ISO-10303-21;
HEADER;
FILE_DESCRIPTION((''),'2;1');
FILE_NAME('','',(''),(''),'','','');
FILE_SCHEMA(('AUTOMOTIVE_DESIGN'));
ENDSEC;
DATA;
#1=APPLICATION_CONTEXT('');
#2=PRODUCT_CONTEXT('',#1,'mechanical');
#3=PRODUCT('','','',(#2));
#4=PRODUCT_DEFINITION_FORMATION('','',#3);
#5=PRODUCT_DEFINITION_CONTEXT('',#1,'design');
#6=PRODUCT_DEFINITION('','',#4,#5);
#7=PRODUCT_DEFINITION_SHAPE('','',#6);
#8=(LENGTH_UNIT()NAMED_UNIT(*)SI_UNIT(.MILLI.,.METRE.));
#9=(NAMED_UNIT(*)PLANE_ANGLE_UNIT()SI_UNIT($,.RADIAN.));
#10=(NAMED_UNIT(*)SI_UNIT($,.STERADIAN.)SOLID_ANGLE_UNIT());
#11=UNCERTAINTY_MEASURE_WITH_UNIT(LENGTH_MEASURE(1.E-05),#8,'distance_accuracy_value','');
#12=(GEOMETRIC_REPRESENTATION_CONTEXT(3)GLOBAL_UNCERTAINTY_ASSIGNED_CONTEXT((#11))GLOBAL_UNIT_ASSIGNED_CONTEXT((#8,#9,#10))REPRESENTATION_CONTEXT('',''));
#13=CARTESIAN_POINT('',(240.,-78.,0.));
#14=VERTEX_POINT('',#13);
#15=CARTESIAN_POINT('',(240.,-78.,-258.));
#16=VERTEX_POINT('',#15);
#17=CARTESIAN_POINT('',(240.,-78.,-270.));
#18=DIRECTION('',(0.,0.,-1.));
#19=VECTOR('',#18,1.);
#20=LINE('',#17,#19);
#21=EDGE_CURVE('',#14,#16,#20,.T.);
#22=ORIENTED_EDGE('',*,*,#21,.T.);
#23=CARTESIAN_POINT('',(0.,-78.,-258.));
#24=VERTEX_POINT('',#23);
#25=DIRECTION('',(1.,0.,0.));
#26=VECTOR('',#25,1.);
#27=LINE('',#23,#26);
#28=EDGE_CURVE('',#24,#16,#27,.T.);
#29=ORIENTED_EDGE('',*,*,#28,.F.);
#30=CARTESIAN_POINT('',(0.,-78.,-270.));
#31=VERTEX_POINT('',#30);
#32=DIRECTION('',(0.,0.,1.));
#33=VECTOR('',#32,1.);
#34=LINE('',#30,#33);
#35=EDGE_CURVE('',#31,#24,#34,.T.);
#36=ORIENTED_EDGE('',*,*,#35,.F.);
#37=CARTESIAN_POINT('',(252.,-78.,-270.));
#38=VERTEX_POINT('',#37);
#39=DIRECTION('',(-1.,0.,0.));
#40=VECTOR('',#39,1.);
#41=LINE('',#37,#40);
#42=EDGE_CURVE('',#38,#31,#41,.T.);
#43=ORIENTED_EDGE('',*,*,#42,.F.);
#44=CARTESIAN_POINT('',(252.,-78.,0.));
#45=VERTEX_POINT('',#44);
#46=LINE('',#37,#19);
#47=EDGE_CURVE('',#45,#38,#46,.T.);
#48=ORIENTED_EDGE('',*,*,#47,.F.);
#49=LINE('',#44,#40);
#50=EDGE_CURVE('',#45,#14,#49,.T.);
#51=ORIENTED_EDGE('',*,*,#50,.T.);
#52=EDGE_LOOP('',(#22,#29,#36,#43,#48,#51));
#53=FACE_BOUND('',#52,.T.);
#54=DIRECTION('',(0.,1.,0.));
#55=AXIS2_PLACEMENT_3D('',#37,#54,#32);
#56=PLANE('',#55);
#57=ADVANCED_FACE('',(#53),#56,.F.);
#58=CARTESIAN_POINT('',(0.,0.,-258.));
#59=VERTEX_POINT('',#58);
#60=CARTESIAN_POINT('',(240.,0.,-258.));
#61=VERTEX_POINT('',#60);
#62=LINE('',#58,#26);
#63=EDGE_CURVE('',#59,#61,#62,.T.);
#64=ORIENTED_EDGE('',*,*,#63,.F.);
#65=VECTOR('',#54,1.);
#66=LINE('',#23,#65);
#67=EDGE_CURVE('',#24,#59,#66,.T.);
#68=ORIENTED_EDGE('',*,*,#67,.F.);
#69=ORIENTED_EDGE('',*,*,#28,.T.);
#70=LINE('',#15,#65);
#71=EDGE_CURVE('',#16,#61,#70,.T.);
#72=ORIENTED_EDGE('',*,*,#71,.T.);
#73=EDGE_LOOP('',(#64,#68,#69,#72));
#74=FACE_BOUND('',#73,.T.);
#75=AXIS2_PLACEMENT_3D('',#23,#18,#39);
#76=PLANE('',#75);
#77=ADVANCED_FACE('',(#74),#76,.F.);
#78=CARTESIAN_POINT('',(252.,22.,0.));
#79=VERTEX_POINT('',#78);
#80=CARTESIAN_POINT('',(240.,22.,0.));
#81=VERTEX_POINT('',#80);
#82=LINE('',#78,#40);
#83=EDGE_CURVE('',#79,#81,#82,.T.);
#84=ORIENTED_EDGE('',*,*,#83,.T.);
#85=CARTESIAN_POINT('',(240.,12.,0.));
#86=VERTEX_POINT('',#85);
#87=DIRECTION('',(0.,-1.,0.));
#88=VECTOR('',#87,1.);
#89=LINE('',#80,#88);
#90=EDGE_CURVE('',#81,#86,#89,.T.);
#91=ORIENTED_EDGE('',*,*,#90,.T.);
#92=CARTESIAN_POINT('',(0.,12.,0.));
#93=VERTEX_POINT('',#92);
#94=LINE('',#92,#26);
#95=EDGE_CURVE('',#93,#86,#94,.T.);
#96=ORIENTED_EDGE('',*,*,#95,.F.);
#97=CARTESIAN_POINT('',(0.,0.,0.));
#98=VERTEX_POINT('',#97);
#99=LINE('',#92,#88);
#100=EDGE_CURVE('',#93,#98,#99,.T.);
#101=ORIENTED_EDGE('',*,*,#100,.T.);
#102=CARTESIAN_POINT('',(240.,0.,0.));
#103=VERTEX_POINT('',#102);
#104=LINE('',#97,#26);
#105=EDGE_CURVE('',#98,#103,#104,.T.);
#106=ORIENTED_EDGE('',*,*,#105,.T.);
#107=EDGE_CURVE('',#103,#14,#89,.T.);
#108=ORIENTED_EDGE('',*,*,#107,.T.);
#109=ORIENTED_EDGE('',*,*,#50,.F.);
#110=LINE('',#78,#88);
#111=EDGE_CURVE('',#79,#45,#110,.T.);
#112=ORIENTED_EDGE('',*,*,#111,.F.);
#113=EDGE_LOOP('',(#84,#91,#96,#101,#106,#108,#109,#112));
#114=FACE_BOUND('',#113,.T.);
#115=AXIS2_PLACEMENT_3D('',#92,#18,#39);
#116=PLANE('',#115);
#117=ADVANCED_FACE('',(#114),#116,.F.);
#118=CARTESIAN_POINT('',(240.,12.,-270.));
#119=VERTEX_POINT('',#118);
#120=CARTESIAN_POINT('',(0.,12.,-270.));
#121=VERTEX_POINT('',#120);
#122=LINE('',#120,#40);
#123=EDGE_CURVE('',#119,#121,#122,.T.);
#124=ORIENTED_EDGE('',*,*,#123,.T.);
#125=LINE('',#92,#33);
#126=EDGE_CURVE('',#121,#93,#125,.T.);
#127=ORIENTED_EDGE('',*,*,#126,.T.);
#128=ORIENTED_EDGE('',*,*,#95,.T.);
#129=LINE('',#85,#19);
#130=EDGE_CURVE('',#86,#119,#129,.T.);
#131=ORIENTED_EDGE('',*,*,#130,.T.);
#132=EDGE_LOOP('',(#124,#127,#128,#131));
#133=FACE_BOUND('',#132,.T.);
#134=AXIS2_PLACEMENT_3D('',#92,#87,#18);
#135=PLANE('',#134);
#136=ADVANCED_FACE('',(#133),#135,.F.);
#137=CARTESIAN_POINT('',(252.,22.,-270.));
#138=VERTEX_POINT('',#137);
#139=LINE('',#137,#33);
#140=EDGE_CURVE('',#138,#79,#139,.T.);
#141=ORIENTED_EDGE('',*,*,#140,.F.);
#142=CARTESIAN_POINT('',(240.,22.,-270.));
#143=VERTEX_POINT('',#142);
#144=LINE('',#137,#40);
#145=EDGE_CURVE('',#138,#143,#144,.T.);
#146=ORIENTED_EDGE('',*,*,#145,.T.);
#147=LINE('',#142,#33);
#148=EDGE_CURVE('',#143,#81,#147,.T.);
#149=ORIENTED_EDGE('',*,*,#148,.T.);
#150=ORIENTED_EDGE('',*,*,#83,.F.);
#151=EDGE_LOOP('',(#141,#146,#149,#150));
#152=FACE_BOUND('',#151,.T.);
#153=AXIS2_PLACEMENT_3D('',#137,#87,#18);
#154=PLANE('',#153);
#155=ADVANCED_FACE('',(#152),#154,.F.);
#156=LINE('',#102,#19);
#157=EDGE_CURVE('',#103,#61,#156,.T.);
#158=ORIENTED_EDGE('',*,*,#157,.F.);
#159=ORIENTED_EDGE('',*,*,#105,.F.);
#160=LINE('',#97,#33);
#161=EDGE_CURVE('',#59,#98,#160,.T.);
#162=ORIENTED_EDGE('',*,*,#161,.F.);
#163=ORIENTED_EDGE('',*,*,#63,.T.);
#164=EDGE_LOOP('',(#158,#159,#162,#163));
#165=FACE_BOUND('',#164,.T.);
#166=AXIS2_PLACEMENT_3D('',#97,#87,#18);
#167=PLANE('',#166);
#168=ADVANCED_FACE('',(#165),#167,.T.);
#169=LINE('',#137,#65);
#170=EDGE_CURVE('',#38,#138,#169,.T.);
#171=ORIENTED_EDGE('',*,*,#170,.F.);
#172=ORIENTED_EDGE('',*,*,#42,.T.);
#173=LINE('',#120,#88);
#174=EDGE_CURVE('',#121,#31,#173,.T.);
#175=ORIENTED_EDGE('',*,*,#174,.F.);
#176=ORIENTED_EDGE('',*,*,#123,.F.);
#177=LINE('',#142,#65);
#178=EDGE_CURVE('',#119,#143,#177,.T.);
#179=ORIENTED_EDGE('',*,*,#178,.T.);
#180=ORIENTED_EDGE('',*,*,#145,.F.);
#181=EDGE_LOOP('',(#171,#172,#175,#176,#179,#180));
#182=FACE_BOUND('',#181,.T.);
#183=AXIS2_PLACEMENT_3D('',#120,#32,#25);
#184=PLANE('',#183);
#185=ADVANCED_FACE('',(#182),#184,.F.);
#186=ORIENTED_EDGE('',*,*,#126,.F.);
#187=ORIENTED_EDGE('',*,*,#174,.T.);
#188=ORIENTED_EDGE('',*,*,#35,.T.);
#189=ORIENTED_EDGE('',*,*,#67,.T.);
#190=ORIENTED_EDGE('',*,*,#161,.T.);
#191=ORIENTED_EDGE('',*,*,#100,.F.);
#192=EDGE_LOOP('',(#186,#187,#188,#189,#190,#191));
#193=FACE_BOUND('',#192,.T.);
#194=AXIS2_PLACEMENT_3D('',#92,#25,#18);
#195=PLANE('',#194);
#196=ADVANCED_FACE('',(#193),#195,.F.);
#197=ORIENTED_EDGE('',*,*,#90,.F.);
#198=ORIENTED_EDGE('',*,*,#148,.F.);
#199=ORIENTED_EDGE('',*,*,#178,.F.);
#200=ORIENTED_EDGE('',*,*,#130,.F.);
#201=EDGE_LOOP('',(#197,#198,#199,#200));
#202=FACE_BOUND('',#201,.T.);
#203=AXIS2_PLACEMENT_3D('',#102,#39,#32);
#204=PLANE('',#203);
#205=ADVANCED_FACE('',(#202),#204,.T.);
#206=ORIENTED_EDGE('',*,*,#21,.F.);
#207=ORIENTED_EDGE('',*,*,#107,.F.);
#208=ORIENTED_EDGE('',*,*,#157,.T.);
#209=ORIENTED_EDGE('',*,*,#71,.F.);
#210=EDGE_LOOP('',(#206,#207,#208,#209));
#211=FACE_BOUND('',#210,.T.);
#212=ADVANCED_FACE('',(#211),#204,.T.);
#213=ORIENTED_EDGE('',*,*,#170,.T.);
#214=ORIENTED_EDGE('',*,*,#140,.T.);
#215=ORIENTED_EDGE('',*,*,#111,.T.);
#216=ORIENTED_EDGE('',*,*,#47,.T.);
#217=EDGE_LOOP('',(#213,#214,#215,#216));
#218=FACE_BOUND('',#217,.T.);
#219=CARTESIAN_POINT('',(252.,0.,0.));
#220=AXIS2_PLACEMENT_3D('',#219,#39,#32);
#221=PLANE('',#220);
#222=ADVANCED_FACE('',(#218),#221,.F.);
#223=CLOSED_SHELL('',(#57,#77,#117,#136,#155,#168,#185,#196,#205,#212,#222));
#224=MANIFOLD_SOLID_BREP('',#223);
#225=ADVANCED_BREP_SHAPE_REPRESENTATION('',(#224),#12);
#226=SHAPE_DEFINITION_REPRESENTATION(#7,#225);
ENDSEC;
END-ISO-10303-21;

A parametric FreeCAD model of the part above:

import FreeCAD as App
import Part
import Sketcher

doc = App.newDocument("Part")
body = doc.addObject("PartDesign::Body", "Body")

sketch1 = doc.addObject("Sketcher::SketchObject", "Sketch")
body.addObject(sketch1)
sketch1.AttachmentSupport = (doc.XZ_Plane, [""])
sketch1.MapMode = "FlatFace"
sketch1.addGeometry(Part.LineSegment(App.Vector(0, -270, 0), App.Vector(0, 0, 0)), False)
sketch1.addGeometry(Part.LineSegment(App.Vector(0, 0, 0), App.Vector(240, 0, 0)), False)
sketch1.addGeometry(Part.LineSegment(App.Vector(240, 0, 0), App.Vector(240, -270, 0)), False)
sketch1.addGeometry(Part.LineSegment(App.Vector(240, -270, 0), App.Vector(0, -270, 0)), False)
sketch1.addConstraint(Sketcher.Constraint("Coincident", 0, 2, 1, 1))
sketch1.addConstraint(Sketcher.Constraint("Coincident", 1, 2, 2, 1))
sketch1.addConstraint(Sketcher.Constraint("Coincident", 2, 2, 3, 1))
sketch1.addConstraint(Sketcher.Constraint("Coincident", 3, 2, 0, 1))
sketch1.addConstraint(Sketcher.Constraint("Vertical", 0))
sketch1.addConstraint(Sketcher.Constraint("Horizontal", 1))
sketch1.addConstraint(Sketcher.Constraint("Vertical", 2))
sketch1.addConstraint(Sketcher.Constraint("Horizontal", 3))
sketch1.addConstraint(Sketcher.Constraint("Coincident", 0, 2, -1, 1))
sketch1.addConstraint(Sketcher.Constraint("DistanceX", 1, 1, 1, 2, 240.0))
sketch1.addConstraint(Sketcher.Constraint("DistanceY", 0, 1, 0, 2, 270.0))
pad1 = doc.addObject("PartDesign::Pad", "Pad")
body.addObject(pad1)
pad1.Profile = sketch1
pad1.Length = 12
pad1.Reversed = True

sketch2 = doc.addObject("Sketcher::SketchObject", "Sketch001")
body.addObject(sketch2)
sketch2.AttachmentSupport = (doc.YZ_Plane, [""])
sketch2.MapMode = "FlatFace"
sketch2.AttachmentOffset = App.Placement(App.Vector(0, 0, 240), App.Rotation())
sketch2.addGeometry(Part.LineSegment(App.Vector(22, 0, 0), App.Vector(-78, 0, 0)), False)
sketch2.addGeometry(Part.LineSegment(App.Vector(-78, 0, 0), App.Vector(-78, -270, 0)), False)
sketch2.addGeometry(Part.LineSegment(App.Vector(-78, -270, 0), App.Vector(22, -270, 0)), False)
sketch2.addGeometry(Part.LineSegment(App.Vector(22, -270, 0), App.Vector(22, 0, 0)), False)
sketch2.addConstraint(Sketcher.Constraint("Coincident", 0, 2, 1, 1))
sketch2.addConstraint(Sketcher.Constraint("Coincident", 1, 2, 2, 1))
sketch2.addConstraint(Sketcher.Constraint("Coincident", 2, 2, 3, 1))
sketch2.addConstraint(Sketcher.Constraint("Coincident", 3, 2, 0, 1))
sketch2.addConstraint(Sketcher.Constraint("Horizontal", 0))
sketch2.addConstraint(Sketcher.Constraint("Vertical", 1))
sketch2.addConstraint(Sketcher.Constraint("Horizontal", 2))
sketch2.addConstraint(Sketcher.Constraint("Vertical", 3))
sketch2.addConstraint(Sketcher.Constraint("PointOnObject", 0, 2, -1))
sketch2.addConstraint(Sketcher.Constraint("DistanceX", 0, 2, 0, 1, 100.0))
sketch2.addConstraint(Sketcher.Constraint("DistanceY", 1, 2, 1, 1, 270.0))
sketch2.addConstraint(Sketcher.Constraint("DistanceX", 0, 2, -1, 1, 78.0))
pad2 = doc.addObject("PartDesign::Pad", "Pad001")
body.addObject(pad2)
pad2.Profile = sketch2
pad2.Length = 12

sketch3 = doc.addObject("Sketcher::SketchObject", "Sketch002")
body.addObject(sketch3)
sketch3.AttachmentSupport = (doc.YZ_Plane, [""])
sketch3.MapMode = "FlatFace"
sketch3.AttachmentOffset = App.Placement(App.Vector(0, 0, 240), App.Rotation())
sketch3.addGeometry(Part.LineSegment(App.Vector(0, -270, 0), App.Vector(-78, -270, 0)), False)
sketch3.addGeometry(Part.LineSegment(App.Vector(-78, -270, 0), App.Vector(-78, -258, 0)), False)
sketch3.addGeometry(Part.LineSegment(App.Vector(-78, -258, 0), App.Vector(0, -258, 0)), False)
sketch3.addGeometry(Part.LineSegment(App.Vector(0, -258, 0), App.Vector(0, -270, 0)), False)
sketch3.addConstraint(Sketcher.Constraint("Coincident", 0, 2, 1, 1))
sketch3.addConstraint(Sketcher.Constraint("Coincident", 1, 2, 2, 1))
sketch3.addConstraint(Sketcher.Constraint("Coincident", 2, 2, 3, 1))
sketch3.addConstraint(Sketcher.Constraint("Coincident", 3, 2, 0, 1))
sketch3.addConstraint(Sketcher.Constraint("Horizontal", 0))
sketch3.addConstraint(Sketcher.Constraint("Vertical", 1))
sketch3.addConstraint(Sketcher.Constraint("Horizontal", 2))
sketch3.addConstraint(Sketcher.Constraint("Vertical", 3))
sketch3.addConstraint(Sketcher.Constraint("PointOnObject", 2, 2, -2))
sketch3.addConstraint(Sketcher.Constraint("DistanceX", 0, 2, 0, 1, 78.0))
sketch3.addConstraint(Sketcher.Constraint("DistanceY", 1, 1, 1, 2, 12.0))
sketch3.addConstraint(Sketcher.Constraint("DistanceY", 0, 2, -1, 1, 270.0))
pad3 = doc.addObject("PartDesign::Pad", "Pad002")
body.addObject(pad3)
pad3.Profile = sketch3
pad3.Length = 240
pad3.Reversed = True

doc.recompute()
